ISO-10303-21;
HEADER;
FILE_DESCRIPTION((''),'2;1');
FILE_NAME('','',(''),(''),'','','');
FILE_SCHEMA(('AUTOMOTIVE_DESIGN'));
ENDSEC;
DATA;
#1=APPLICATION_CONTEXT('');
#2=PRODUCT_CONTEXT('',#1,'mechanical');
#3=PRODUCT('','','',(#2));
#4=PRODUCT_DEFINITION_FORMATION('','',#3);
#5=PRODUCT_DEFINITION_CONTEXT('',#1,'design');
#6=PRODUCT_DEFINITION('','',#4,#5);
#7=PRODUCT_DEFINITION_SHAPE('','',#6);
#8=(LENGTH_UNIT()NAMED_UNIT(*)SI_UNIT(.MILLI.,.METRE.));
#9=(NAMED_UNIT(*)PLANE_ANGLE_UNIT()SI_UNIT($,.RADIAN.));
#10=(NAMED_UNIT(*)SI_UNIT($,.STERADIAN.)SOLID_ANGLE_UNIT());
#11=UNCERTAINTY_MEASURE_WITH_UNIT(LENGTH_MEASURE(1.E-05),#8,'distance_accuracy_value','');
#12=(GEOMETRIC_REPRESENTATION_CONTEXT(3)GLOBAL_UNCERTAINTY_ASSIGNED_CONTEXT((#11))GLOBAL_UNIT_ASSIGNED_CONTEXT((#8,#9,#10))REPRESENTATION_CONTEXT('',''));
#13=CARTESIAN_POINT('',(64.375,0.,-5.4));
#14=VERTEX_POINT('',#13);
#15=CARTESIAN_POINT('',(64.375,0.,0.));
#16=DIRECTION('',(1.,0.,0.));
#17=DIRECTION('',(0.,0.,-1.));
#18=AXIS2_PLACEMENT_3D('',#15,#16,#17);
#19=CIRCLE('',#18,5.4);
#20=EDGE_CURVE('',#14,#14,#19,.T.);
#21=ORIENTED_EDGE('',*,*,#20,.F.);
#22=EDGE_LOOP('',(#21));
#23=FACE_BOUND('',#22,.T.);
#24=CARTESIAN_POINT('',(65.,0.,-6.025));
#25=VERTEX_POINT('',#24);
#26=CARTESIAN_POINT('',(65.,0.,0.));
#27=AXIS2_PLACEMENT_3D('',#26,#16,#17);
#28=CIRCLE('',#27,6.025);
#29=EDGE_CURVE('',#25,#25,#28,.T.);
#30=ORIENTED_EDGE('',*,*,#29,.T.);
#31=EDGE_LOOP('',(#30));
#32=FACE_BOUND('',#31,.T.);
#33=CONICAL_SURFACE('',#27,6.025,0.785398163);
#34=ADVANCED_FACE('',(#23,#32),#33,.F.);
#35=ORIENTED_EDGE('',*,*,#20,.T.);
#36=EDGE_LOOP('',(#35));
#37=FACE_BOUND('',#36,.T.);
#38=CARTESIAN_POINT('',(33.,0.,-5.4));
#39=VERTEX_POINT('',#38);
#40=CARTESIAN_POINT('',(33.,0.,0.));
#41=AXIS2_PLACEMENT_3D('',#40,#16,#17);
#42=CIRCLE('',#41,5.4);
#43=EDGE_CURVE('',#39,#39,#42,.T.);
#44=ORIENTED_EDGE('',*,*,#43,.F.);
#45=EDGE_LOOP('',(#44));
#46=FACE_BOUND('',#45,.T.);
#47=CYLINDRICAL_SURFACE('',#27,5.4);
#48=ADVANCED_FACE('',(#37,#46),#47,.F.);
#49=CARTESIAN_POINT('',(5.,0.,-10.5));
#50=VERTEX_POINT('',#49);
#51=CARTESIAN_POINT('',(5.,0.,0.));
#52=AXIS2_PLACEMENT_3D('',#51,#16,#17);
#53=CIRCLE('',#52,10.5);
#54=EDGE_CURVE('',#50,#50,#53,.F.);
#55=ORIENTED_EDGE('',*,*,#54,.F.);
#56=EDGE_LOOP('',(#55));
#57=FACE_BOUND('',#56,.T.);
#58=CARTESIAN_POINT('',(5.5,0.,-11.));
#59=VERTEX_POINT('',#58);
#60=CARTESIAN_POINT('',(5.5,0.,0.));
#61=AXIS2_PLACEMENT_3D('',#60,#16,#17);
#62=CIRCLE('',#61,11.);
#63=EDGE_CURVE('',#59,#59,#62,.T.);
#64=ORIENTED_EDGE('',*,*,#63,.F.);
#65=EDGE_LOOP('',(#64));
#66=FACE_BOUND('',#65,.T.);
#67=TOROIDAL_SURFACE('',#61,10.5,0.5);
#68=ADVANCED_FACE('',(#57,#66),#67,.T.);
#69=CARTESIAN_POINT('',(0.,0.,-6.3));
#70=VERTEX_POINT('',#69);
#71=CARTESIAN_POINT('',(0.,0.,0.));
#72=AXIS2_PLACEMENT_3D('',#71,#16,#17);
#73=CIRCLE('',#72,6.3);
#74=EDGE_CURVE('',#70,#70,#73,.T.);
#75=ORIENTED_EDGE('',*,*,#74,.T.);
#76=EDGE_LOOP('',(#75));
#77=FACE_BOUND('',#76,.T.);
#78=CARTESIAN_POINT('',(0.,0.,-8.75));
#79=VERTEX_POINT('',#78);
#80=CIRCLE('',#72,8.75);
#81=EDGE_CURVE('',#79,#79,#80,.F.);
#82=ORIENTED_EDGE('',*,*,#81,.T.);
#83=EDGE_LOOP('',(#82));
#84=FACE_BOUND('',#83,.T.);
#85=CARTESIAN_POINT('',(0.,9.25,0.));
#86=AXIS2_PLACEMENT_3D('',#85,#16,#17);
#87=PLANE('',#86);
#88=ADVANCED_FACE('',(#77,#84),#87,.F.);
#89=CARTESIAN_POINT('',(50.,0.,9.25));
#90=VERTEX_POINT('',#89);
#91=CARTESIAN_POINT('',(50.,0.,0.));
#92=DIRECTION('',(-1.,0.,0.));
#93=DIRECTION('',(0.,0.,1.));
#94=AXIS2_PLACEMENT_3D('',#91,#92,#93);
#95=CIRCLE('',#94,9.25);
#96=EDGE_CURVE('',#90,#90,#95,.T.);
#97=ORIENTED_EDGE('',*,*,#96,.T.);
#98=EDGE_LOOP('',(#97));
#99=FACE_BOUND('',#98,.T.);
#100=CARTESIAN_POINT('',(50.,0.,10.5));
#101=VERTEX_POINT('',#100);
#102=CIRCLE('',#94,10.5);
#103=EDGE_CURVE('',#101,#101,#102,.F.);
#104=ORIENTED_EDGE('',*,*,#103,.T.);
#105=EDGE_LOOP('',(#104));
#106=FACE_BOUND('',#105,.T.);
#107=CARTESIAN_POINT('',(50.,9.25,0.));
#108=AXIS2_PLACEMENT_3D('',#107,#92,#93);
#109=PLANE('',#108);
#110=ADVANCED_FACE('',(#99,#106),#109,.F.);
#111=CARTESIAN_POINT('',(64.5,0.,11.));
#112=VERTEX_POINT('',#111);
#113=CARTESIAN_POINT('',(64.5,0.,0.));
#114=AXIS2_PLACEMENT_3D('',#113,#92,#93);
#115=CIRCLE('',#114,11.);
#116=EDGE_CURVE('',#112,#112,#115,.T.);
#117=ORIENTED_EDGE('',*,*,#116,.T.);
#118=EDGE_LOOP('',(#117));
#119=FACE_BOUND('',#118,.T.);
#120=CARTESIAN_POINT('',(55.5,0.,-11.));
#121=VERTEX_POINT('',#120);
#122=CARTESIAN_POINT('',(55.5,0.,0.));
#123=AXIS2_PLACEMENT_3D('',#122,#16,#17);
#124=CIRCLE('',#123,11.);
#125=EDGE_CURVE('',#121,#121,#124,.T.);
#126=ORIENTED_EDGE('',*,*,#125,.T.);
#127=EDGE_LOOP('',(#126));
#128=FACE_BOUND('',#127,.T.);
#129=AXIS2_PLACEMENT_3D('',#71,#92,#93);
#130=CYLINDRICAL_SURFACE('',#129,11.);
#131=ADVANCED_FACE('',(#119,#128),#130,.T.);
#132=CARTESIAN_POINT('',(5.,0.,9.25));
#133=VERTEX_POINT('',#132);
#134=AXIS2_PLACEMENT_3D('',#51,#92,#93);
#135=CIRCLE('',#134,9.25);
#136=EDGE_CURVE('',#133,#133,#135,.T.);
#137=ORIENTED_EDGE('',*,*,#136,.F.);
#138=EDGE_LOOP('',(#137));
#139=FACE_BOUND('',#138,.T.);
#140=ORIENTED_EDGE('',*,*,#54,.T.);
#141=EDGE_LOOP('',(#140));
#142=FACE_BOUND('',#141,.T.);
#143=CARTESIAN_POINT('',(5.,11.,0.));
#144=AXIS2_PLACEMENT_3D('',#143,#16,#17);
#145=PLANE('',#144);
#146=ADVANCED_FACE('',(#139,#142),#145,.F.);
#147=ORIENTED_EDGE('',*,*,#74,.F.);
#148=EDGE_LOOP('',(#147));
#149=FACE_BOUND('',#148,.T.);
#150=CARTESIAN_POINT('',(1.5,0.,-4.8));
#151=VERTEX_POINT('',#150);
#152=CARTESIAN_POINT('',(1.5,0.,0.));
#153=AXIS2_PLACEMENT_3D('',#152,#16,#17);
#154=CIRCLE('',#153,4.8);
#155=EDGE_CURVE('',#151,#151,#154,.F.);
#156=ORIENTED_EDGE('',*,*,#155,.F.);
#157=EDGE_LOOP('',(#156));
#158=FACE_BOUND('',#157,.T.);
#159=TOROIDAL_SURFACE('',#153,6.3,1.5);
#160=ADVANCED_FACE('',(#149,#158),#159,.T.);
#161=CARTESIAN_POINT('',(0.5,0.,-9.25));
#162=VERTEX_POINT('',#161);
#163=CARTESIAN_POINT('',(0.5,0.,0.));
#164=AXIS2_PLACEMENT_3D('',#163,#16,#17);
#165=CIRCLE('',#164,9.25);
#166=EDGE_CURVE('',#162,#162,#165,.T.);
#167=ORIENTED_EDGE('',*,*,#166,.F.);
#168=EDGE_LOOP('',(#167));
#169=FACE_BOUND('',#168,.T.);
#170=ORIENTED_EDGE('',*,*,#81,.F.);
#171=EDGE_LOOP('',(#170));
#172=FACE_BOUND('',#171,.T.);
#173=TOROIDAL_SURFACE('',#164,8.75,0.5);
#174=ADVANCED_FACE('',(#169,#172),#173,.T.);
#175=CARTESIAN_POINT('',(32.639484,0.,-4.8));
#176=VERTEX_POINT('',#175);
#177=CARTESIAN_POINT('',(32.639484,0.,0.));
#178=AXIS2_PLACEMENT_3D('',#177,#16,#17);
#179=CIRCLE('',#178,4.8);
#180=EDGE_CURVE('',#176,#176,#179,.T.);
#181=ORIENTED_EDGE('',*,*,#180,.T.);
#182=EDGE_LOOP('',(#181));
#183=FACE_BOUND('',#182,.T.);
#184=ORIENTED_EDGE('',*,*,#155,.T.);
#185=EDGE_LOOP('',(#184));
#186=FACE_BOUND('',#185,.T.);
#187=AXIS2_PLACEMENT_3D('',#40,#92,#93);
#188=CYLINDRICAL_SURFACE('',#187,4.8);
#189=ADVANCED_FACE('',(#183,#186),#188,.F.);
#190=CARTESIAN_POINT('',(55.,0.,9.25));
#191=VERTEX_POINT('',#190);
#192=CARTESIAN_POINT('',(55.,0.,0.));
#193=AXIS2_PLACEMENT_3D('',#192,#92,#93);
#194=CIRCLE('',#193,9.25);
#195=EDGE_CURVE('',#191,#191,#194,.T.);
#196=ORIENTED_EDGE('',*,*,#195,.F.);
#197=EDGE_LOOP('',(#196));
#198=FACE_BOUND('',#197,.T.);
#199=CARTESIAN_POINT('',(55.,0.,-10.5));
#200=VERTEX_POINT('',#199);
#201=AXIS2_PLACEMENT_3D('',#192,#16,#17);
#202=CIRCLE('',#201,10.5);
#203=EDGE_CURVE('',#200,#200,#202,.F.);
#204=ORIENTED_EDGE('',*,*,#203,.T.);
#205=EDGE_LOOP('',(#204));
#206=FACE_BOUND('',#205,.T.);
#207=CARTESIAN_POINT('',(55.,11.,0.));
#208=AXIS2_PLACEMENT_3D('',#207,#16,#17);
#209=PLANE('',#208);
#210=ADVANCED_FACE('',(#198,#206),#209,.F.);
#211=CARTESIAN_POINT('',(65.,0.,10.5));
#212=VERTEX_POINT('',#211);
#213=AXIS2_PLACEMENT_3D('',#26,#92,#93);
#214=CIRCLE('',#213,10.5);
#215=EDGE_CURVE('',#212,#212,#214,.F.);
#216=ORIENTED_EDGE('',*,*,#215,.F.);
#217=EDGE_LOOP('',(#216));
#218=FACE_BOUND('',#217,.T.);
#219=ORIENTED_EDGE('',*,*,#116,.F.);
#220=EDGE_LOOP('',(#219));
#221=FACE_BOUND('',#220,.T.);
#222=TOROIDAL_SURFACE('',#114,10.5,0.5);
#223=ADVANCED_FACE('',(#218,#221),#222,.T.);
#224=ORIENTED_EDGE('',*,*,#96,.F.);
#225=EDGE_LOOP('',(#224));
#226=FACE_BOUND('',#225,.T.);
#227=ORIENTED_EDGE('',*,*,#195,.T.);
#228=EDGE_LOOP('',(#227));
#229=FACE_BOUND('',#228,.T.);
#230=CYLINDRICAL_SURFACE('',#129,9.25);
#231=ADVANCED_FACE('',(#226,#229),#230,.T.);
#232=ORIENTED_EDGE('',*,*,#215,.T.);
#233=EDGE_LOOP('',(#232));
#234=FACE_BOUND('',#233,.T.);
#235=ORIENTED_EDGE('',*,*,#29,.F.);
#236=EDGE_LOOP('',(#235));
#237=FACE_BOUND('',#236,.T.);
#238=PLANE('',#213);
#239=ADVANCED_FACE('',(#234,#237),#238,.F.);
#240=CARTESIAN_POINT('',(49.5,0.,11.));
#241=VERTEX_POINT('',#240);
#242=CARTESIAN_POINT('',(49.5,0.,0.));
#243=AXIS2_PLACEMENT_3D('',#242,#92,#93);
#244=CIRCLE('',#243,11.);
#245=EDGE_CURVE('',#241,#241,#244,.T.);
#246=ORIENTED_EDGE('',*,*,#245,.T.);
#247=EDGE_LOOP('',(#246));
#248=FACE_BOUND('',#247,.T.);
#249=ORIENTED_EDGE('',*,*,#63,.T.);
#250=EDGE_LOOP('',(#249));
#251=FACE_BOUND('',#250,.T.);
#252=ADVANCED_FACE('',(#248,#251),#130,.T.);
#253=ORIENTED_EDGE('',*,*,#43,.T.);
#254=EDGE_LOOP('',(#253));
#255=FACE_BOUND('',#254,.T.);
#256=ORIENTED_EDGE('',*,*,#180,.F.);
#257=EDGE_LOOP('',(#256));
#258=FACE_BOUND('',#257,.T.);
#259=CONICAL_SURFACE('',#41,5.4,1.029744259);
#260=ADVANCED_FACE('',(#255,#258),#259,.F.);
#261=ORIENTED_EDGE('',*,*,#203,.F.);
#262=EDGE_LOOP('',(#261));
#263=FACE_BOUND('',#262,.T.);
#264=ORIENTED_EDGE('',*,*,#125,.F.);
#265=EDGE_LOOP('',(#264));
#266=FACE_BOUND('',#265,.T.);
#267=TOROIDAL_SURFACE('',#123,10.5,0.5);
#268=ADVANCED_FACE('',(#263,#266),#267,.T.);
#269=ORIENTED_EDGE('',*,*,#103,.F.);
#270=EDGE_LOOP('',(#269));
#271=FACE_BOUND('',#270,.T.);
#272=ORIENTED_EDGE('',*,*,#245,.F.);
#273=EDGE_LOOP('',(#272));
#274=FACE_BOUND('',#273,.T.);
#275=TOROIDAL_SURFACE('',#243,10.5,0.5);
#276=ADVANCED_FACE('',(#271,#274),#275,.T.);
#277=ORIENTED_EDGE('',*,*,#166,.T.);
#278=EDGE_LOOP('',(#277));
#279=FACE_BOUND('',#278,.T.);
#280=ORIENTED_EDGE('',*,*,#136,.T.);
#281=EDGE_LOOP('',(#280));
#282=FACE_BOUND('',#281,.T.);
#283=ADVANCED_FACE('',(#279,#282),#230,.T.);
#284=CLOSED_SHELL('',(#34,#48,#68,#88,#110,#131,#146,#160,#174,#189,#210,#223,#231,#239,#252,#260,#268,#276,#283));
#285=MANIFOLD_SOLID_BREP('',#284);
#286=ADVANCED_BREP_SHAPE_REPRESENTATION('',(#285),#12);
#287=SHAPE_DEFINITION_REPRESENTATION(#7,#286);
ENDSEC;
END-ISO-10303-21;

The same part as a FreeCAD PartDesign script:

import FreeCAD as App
import Part
import Sketcher
from FreeCAD import Vector
Q = App.Units.Quantity


def edges_at(feature, points):
    """Names of the edges that pass closest to the given points."""
    edges = feature.Shape.Edges
    near = lambda p: min(range(len(edges)), key=lambda i: edges[i].distToShape(Part.Vertex(*p))[0])
    return sorted({f"Edge{near(p) + 1}" for p in points})


def add_polygon(sketch, points):
    """Adds a closed chain of lines whose ends are joined by coincident constraints."""
    first, n = sketch.GeometryCount, len(points)
    for a, b in zip(points, points[1:] + points[:1]):
        sketch.addGeometry(Part.LineSegment(App.Vector(*a, 0), App.Vector(*b, 0)), False)
    for i in range(n):
        sketch.addConstraint(Sketcher.Constraint("Coincident", first + i, 2, first + (i + 1) % n, 1))

doc = App.newDocument("Part")
body = doc.addObject("PartDesign::Body", "Body")

sketch1 = body.newObject("Sketcher::SketchObject", "Sketch")
sketch1.AttachmentSupport = (doc.getObject("XY_Plane"), [""])
sketch1.MapMode = "FlatFace"
add_polygon(sketch1, [(0, 0), (65, 0), (65, 11), (55, 11), (55, 9.25), (50, 9.25), (50, 11), (5, 11), (5, 9.25), (0, 9.25)])
sketch1.addConstraint([
    Sketcher.Constraint("Horizontal", 0),
    Sketcher.Constraint("Vertical", 1),
    Sketcher.Constraint("Horizontal", 2),
    Sketcher.Constraint("Vertical", 3),
    Sketcher.Constraint("Horizontal", 4),
    Sketcher.Constraint("Vertical", 5),
    Sketcher.Constraint("Horizontal", 6),
    Sketcher.Constraint("Vertical", 7),
    Sketcher.Constraint("Horizontal", 8),
    Sketcher.Constraint("Vertical", 9),
    Sketcher.Constraint("Coincident", 9, 2, -1, 1),
    Sketcher.Constraint("Horizontal", 2, 2, 5, 2),
    Sketcher.Constraint("Horizontal", 4, 2, 7, 2),
    Sketcher.Constraint("Equal", 4, 8),
    Sketcher.Constraint("DistanceX", 0, 1, 0, 2, Q("65 mm")),
    Sketcher.Constraint("DistanceX", 2, 2, 2, 1, Q("10 mm")),
    Sketcher.Constraint("DistanceX", 4, 2, 4, 1, Q("5 mm")),
    Sketcher.Constraint("DistanceY", 1, 1, 1, 2, Q("11 mm")),
    Sketcher.Constraint("DistanceY", 3, 2, 3, 1, Q("1.75 mm")),
])
revolution = body.newObject("PartDesign::Revolution", "Revolution")
revolution.Profile = sketch1
revolution.ReferenceAxis = (sketch1, ["H_Axis"])
revolution.Angle = 360

sketch2 = body.newObject("Sketcher::SketchObject", "Sketch001")
sketch2.AttachmentSupport = (doc.getObject("YZ_Plane"), [""])
sketch2.MapMode = "FlatFace"
sketch2.addGeometry(Part.Circle(Vector(0, 0, 0), Vector(0, 0, 1), 4.8), False)
sketch2.addConstraint([
    Sketcher.Constraint("Coincident", 0, 3, -1, 1),
    Sketcher.Constraint("Diameter", 0, Q("9.6 mm")),
])
pocket1 = body.newObject("PartDesign::Pocket", "Pocket")
pocket1.Profile = sketch2
pocket1.Length = 33
pocket1.Reversed = True

sketch3 = body.newObject("Sketcher::SketchObject", "Sketch002")
sketch3.AttachmentSupport = (doc.getObject("YZ_Plane"), [""])
sketch3.MapMode = "FlatFace"
sketch3.AttachmentOffset = App.Placement(Vector(0, 0, 65), App.Rotation())
sketch3.addGeometry(Part.Circle(Vector(0, 0, 0), Vector(0, 0, 1), 5.4), False)
sketch3.addConstraint([
    Sketcher.Constraint("Coincident", 0, 3, -1, 1),
    Sketcher.Constraint("Diameter", 0, Q("10.8 mm")),
])
doc.recompute()
hole = body.newObject("PartDesign::Hole", "Hole")
hole.Profile = sketch3
hole.ThreadType = "None"
hole.Diameter = 10.8
hole.DepthType = "Dimension"
hole.Depth = 32
hole.DrillPoint = "Angled"
hole.DrillPointAngle = 118
hole.HoleCutType = "Countersink"
hole.HoleCutDiameter = 12.05
hole.HoleCutCountersinkAngle = 90
doc.recompute()

fillet = body.newObject("PartDesign::Fillet", "Fillet")
fillet.Base = (hole, edges_at(hole, [(0, 0, -4.8)]))
fillet.Radius = 1.5
doc.recompute()

fillet2 = body.newObject("PartDesign::Fillet", "Fillet001")
fillet2.Base = (fillet, edges_at(fillet, [(0, 0, -9.25)]))
fillet2.Radius = 0.5
doc.recompute()

fillet3 = body.newObject("PartDesign::Fillet", "Fillet002")
fillet3.Base = (fillet2, edges_at(fillet2, [(65, 0, -11), (50, 0, -11), (55, 0, -11)]))
fillet3.Radius = 0.5
doc.recompute()

fillet4 = body.newObject("PartDesign::Fillet", "Fillet003")
fillet4.Base = (fillet3, edges_at(fillet3, [(5, 0, -11)]))
fillet4.Radius = 0.5

doc.recompute()
